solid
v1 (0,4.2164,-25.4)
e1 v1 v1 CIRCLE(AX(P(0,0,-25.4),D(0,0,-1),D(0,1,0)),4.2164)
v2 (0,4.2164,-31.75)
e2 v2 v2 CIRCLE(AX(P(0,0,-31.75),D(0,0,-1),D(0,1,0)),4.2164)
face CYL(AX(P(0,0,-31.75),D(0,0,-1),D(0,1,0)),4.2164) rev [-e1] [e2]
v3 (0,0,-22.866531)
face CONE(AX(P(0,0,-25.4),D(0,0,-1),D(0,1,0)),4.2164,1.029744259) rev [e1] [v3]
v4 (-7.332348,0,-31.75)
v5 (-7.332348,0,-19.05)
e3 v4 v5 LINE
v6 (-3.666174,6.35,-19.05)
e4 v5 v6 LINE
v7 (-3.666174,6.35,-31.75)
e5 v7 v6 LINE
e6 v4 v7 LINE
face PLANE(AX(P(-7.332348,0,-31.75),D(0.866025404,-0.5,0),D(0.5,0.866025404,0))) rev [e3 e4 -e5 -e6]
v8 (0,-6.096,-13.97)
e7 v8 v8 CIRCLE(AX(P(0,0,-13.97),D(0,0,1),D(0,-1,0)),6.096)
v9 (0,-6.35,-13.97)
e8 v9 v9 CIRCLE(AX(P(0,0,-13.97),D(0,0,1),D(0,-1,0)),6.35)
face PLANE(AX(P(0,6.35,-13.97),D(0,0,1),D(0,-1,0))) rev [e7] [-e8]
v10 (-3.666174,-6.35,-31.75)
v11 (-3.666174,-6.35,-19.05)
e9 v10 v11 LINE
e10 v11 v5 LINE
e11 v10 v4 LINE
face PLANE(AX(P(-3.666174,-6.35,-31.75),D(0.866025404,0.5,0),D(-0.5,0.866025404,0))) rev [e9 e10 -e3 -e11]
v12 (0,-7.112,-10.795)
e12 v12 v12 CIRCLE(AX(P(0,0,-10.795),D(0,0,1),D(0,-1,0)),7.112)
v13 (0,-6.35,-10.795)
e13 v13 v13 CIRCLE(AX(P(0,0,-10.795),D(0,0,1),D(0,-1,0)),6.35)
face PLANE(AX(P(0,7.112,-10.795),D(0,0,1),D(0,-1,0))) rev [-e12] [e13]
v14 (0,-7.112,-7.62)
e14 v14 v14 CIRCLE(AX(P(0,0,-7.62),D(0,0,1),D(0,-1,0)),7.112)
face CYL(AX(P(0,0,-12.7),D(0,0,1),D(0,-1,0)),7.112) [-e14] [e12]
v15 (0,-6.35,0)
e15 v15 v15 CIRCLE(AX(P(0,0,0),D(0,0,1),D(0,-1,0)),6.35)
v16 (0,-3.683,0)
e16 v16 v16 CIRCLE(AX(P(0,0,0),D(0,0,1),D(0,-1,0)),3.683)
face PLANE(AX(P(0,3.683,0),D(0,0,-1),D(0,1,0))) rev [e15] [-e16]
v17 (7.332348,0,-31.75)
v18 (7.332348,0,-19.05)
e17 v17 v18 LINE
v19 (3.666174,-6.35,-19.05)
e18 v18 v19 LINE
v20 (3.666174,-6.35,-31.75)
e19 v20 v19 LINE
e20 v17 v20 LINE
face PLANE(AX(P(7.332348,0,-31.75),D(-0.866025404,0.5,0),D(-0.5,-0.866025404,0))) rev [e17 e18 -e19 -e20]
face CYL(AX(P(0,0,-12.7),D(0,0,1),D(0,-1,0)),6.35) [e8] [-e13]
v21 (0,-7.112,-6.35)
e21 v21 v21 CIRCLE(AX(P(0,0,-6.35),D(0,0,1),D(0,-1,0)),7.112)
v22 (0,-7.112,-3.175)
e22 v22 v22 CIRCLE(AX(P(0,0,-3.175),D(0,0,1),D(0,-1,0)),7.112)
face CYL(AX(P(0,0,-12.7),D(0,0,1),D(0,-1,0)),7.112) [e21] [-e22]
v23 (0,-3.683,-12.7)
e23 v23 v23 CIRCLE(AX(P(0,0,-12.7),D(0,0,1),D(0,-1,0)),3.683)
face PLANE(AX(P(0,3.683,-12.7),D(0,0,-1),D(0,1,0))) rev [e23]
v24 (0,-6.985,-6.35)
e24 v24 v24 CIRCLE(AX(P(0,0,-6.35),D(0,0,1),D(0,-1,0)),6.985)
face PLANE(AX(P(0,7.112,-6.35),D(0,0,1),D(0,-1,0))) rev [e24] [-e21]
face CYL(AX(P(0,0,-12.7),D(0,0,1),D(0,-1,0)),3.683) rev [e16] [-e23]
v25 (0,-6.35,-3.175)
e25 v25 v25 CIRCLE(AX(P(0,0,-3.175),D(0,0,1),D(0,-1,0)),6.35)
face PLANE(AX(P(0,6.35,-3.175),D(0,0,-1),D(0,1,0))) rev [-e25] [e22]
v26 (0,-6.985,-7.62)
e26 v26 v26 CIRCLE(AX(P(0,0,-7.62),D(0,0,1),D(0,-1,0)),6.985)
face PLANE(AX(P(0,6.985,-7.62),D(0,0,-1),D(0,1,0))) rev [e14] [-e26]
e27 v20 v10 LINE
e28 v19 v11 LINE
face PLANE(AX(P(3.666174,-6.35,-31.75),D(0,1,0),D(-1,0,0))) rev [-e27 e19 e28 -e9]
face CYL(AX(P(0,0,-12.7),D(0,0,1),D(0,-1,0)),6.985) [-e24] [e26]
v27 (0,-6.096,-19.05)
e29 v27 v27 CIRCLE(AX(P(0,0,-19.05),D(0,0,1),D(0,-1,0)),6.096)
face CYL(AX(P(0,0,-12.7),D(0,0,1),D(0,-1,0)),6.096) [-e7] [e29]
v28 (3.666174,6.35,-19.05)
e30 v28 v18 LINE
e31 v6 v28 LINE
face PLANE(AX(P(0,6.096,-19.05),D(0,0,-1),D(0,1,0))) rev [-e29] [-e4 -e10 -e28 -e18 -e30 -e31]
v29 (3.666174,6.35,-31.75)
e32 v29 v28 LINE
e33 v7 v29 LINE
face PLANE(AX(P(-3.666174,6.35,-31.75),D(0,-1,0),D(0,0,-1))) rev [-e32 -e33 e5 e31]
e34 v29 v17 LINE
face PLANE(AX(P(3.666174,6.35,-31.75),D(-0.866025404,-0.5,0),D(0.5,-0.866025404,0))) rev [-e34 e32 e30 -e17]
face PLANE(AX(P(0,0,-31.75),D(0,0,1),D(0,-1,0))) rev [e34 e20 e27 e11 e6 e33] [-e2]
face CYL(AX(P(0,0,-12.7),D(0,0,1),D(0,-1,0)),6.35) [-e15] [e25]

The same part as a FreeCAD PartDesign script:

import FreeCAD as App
import Part
import Sketcher
Q = App.Units.Quantity

doc = App.newDocument("Part")
params = doc.addObject("Spreadsheet::Sheet", "Params")
for row, (alias, value) in enumerate([
    ("sketch1_height", "0.5 in"),
    ("sketch1_height2", "0.2 in"),
    ("sketch1_width", "0.03 in"),
    ("sketch1_width2", "0.01 in"),
    ("sketch1_height3", "0.75 in"),
    ("revolution_angle", "360 deg"),
    ("sketch3_diameter", "0.332 in"),
    ("hole_diameter", "0.332 in"),
    ("hole_depth", "0.25 in"),
], start=1):
    params.set(f"A{row}", alias)
    params.set(f"B{row}", "=" + value)
    params.setAlias(f"B{row}", alias)

body = doc.addObject("PartDesign::Body", "Body")

sketch1 = body.newObject("Sketcher::SketchObject", "Sketch")
sketch1.AttachmentSupport = (doc.getObject("YZ_Plane"), [""])
sketch1.MapMode = "FlatFace"
sketch1.addGeometry([
    Part.LineSegment(App.Vector(7.11, -3.17, 0), App.Vector(6.35, -3.17, 0)),
    Part.LineSegment(App.Vector(6.35, -3.17, 0), App.Vector(6.35, 0, 0)),
    Part.LineSegment(App.Vector(6.35, 0, 0), App.Vector(3.68, 0, 0)),
    Part.LineSegment(App.Vector(3.68, 0, 0), App.Vector(3.68, -12.7, 0)),
    Part.LineSegment(App.Vector(3.68, -12.7, 0), App.Vector(0, -12.7, 0)),
    Part.LineSegment(App.Vector(0, -12.7, 0), App.Vector(0, -31.75, 0)),
    Part.LineSegment(App.Vector(0, -31.75, 0), App.Vector(17.52, -31.75, 0)),
    Part.LineSegment(App.Vector(17.52, -31.75, 0), App.Vector(17.52, -19.05, 0)),
    Part.LineSegment(App.Vector(17.52, -19.05, 0), App.Vector(6.1, -19.05, 0)),
    Part.LineSegment(App.Vector(6.1, -19.05, 0), App.Vector(6.1, -13.97, 0)),
    Part.LineSegment(App.Vector(6.1, -13.97, 0), App.Vector(6.35, -13.97, 0)),
    Part.LineSegment(App.Vector(6.35, -13.97, 0), App.Vector(6.35, -10.79, 0)),
    Part.LineSegment(App.Vector(6.35, -10.79, 0), App.Vector(7.11, -10.79, 0)),
    Part.LineSegment(App.Vector(7.11, -10.79, 0), App.Vector(7.11, -7.62, 0)),
    Part.LineSegment(App.Vector(7.11, -7.62, 0), App.Vector(6.99, -7.62, 0)),
    Part.LineSegment(App.Vector(6.99, -7.62, 0), App.Vector(6.99, -6.35, 0)),
    Part.LineSegment(App.Vector(6.99, -6.35, 0), App.Vector(7.11, -6.35, 0)),
    Part.LineSegment(App.Vector(7.11, -6.35, 0), App.Vector(7.11, -3.17, 0)),
], False)
sketch1.addConstraint([
    Sketcher.Constraint("Coincident", 0, 2, 1, 1),
    Sketcher.Constraint("Coincident", 1, 2, 2, 1),
    Sketcher.Constraint("Coincident", 2, 2, 3, 1),
    Sketcher.Constraint("Coincident", 3, 2, 4, 1),
    Sketcher.Constraint("Coincident", 4, 2, 5, 1),
    Sketcher.Constraint("Coincident", 5, 2, 6, 1),
    Sketcher.Constraint("Coincident", 6, 2, 7, 1),
    Sketcher.Constraint("Coincident", 7, 2, 8, 1),
    Sketcher.Constraint("Coincident", 8, 2, 9, 1),
    Sketcher.Constraint("Coincident", 9, 2, 10, 1),
    Sketcher.Constraint("Coincident", 10, 2, 11, 1),
    Sketcher.Constraint("Coincident", 11, 2, 12, 1),
    Sketcher.Constraint("Coincident", 12, 2, 13, 1),
    Sketcher.Constraint("Coincident", 13, 2, 14, 1),
    Sketcher.Constraint("Coincident", 14, 2, 15, 1),
    Sketcher.Constraint("Coincident", 15, 2, 16, 1),
    Sketcher.Constraint("Coincident", 16, 2, 17, 1),
    Sketcher.Constraint("Coincident", 17, 2, 0, 1),
    Sketcher.Constraint("Horizontal", 0),
    Sketcher.Constraint("Vertical", 1),
    Sketcher.Constraint("Horizontal", 2),
    Sketcher.Constraint("Vertical", 3),
    Sketcher.Constraint("Horizontal", 4),
    Sketcher.Constraint("Vertical", 5),
    Sketcher.Constraint("Horizontal", 6),
    Sketcher.Constraint("Vertical", 7),
    Sketcher.Constraint("Horizontal", 8),
    Sketcher.Constraint("Vertical", 9),
    Sketcher.Constraint("Horizontal", 10),
    Sketcher.Constraint("Vertical", 11),
    Sketcher.Constraint("Horizontal", 12),
    Sketcher.Constraint("Vertical", 13),
    Sketcher.Constraint("Horizontal", 14),
    Sketcher.Constraint("Vertical", 15),
    Sketcher.Constraint("Horizontal", 16),
    Sketcher.Constraint("Vertical", 17),
    Sketcher.Constraint("PointOnObject", 1, 2, -1),
    Sketcher.Constraint("PointOnObject", 4, 2, -2),
    Sketcher.Constraint("Vertical", 1, 2, 10, 2),
    Sketcher.Constraint("Vertical", 13, 2, 16, 2),
    Sketcher.Constraint("Equal", 3, 7),
    Sketcher.Constraint("Equal", 1, 11),
    Sketcher.Constraint("Equal", 11, 13),
    Sketcher.Constraint("Equal", 13, 17),
    Sketcher.Constraint("DistanceY", 3, 2, 3, 1, Q("0.5 in")),
    Sketcher.Constraint("DistanceY", 9, 1, 9, 2, Q("0.2 in")),
    Sketcher.Constraint("DistanceX", 0, 2, 0, 1, Q("0.03 in")),
    Sketcher.Constraint("DistanceX", 10, 1, 10, 2, Q("0.01 in")),
    Sketcher.Constraint("DistanceY", 5, 2, 5, 1, Q("0.75 in")),
    Sketcher.Constraint("DistanceY", 15, 1, 15, 2, Q("0.05 in")),
    Sketcher.Constraint("DistanceX", 2, 2, 2, 1, Q("0.105 in")),
    Sketcher.Constraint("DistanceX", 4, 2, 4, 1, Q("0.145 in")),
    Sketcher.Constraint("DistanceX", 14, 2, 14, 1, Q("0.005 in")),
    Sketcher.Constraint("DistanceX", 6, 1, 6, 2, 17.520886),
])
sketch1.setExpression("Constraints[44]", "Params.sketch1_height")
sketch1.setExpression("Constraints[45]", "Params.sketch1_height2")
sketch1.setExpression("Constraints[46]", "Params.sketch1_width")
sketch1.setExpression("Constraints[47]", "Params.sketch1_width2")
sketch1.setExpression("Constraints[48]", "Params.sketch1_height3")
revolution = body.newObject("PartDesign::Revolution", "Revolution")
revolution.Profile = sketch1
revolution.ReferenceAxis = (sketch1, ["V_Axis"])
revolution.setExpression("Angle", "Params.revolution_angle")

sketch2 = body.newObject("Sketcher::SketchObject", "Sketch001")
sketch2.AttachmentSupport = (doc.getObject("XY_Plane"), [""])
sketch2.MapMode = "FlatFace"
sketch2.AttachmentOffset = App.Placement(App.Vector(0, 0, -0.75 * 25.4), App.Rotation())
sketch2.addGeometry([
    Part.Circle(App.Vector(0, 0, 0), App.Vector(0, 0, 1), 32),
    Part.LineSegment(App.Vector(-4, 6, 0), App.Vector(-7, 0, 0)),
    Part.LineSegment(App.Vector(-7, 0, 0), App.Vector(-4, -6, 0)),
    Part.LineSegment(App.Vector(-4, -6, 0), App.Vector(4, -6, 0)),
    Part.LineSegment(App.Vector(4, -6, 0), App.Vector(7, 0, 0)),
    Part.LineSegment(App.Vector(7, 0, 0), App.Vector(4, 6, 0)),
    Part.LineSegment(App.Vector(4, 6, 0), App.Vector(-4, 6, 0)),
], False)
sketch2.addConstraint([
    Sketcher.Constraint("Coincident", 1, 2, 2, 1),
    Sketcher.Constraint("Coincident", 2, 2, 3, 1),
    Sketcher.Constraint("Coincident", 3, 2, 4, 1),
    Sketcher.Constraint("Coincident", 4, 2, 5, 1),
    Sketcher.Constraint("Coincident", 5, 2, 6, 1),
    Sketcher.Constraint("Coincident", 6, 2, 1, 1),
    Sketcher.Constraint("Horizontal", 3),
    Sketcher.Constraint("Horizontal", 6),
    Sketcher.Constraint("Coincident", 0, 3, -1, 1),
    Sketcher.Constraint("Symmetric", 1, 2, 4, 2, -1, 1),
    Sketcher.Constraint("Symmetric", 2, 2, 5, 2, -1, 1),
    Sketcher.Constraint("PointOnObject", 1, 2, -1),
    Sketcher.Constraint("Parallel", 1, 4),
    Sketcher.Constraint("Vertical", 3, 2, 5, 2),
    Sketcher.Constraint("Angle", 1, Q("-120 deg")),
    Sketcher.Constraint("DistanceY", 3, 2, 5, 2, Q("0.5 in")),
    Sketcher.Constraint("Diameter", 0, 63.465664),
    Sketcher.Constraint("DistanceX", 3, 1, 3, 2, 7.332348),
])
pocket1 = body.newObject("PartDesign::Pocket", "Pocket")
pocket1.Profile = sketch2
pocket1.Type = "ThroughAll"

sketch3 = body.newObject("Sketcher::SketchObject", "Sketch002")
sketch3.AttachmentSupport = (doc.getObject("XY_Plane"), [""])
sketch3.MapMode = "FlatFace"
sketch3.AttachmentOffset = App.Placement(App.Vector(0, 0, -1.25 * 25.4), App.Rotation())
sketch3.addGeometry(Part.Circle(App.Vector(0, 0, 0), App.Vector(0, 0, 1), 4.2), False)
sketch3.addConstraint([
    Sketcher.Constraint("Coincident", 0, 3, -1, 1),
    Sketcher.Constraint("Diameter", 0, Q("0.332 in")),
])
sketch3.setExpression("Constraints[1]", "Params.sketch3_diameter")
doc.recompute()
hole = body.newObject("PartDesign::Hole", "Hole")
hole.Profile = sketch3
hole.ThreadType = "None"
hole.setExpression("Diameter", "Params.hole_diameter")
hole.DepthType = "Dimension"
hole.setExpression("Depth", "Params.hole_depth")
hole.DrillPoint = "Angled"
hole.DrillPointAngle = 118
hole.Reversed = True

doc.recompute()
